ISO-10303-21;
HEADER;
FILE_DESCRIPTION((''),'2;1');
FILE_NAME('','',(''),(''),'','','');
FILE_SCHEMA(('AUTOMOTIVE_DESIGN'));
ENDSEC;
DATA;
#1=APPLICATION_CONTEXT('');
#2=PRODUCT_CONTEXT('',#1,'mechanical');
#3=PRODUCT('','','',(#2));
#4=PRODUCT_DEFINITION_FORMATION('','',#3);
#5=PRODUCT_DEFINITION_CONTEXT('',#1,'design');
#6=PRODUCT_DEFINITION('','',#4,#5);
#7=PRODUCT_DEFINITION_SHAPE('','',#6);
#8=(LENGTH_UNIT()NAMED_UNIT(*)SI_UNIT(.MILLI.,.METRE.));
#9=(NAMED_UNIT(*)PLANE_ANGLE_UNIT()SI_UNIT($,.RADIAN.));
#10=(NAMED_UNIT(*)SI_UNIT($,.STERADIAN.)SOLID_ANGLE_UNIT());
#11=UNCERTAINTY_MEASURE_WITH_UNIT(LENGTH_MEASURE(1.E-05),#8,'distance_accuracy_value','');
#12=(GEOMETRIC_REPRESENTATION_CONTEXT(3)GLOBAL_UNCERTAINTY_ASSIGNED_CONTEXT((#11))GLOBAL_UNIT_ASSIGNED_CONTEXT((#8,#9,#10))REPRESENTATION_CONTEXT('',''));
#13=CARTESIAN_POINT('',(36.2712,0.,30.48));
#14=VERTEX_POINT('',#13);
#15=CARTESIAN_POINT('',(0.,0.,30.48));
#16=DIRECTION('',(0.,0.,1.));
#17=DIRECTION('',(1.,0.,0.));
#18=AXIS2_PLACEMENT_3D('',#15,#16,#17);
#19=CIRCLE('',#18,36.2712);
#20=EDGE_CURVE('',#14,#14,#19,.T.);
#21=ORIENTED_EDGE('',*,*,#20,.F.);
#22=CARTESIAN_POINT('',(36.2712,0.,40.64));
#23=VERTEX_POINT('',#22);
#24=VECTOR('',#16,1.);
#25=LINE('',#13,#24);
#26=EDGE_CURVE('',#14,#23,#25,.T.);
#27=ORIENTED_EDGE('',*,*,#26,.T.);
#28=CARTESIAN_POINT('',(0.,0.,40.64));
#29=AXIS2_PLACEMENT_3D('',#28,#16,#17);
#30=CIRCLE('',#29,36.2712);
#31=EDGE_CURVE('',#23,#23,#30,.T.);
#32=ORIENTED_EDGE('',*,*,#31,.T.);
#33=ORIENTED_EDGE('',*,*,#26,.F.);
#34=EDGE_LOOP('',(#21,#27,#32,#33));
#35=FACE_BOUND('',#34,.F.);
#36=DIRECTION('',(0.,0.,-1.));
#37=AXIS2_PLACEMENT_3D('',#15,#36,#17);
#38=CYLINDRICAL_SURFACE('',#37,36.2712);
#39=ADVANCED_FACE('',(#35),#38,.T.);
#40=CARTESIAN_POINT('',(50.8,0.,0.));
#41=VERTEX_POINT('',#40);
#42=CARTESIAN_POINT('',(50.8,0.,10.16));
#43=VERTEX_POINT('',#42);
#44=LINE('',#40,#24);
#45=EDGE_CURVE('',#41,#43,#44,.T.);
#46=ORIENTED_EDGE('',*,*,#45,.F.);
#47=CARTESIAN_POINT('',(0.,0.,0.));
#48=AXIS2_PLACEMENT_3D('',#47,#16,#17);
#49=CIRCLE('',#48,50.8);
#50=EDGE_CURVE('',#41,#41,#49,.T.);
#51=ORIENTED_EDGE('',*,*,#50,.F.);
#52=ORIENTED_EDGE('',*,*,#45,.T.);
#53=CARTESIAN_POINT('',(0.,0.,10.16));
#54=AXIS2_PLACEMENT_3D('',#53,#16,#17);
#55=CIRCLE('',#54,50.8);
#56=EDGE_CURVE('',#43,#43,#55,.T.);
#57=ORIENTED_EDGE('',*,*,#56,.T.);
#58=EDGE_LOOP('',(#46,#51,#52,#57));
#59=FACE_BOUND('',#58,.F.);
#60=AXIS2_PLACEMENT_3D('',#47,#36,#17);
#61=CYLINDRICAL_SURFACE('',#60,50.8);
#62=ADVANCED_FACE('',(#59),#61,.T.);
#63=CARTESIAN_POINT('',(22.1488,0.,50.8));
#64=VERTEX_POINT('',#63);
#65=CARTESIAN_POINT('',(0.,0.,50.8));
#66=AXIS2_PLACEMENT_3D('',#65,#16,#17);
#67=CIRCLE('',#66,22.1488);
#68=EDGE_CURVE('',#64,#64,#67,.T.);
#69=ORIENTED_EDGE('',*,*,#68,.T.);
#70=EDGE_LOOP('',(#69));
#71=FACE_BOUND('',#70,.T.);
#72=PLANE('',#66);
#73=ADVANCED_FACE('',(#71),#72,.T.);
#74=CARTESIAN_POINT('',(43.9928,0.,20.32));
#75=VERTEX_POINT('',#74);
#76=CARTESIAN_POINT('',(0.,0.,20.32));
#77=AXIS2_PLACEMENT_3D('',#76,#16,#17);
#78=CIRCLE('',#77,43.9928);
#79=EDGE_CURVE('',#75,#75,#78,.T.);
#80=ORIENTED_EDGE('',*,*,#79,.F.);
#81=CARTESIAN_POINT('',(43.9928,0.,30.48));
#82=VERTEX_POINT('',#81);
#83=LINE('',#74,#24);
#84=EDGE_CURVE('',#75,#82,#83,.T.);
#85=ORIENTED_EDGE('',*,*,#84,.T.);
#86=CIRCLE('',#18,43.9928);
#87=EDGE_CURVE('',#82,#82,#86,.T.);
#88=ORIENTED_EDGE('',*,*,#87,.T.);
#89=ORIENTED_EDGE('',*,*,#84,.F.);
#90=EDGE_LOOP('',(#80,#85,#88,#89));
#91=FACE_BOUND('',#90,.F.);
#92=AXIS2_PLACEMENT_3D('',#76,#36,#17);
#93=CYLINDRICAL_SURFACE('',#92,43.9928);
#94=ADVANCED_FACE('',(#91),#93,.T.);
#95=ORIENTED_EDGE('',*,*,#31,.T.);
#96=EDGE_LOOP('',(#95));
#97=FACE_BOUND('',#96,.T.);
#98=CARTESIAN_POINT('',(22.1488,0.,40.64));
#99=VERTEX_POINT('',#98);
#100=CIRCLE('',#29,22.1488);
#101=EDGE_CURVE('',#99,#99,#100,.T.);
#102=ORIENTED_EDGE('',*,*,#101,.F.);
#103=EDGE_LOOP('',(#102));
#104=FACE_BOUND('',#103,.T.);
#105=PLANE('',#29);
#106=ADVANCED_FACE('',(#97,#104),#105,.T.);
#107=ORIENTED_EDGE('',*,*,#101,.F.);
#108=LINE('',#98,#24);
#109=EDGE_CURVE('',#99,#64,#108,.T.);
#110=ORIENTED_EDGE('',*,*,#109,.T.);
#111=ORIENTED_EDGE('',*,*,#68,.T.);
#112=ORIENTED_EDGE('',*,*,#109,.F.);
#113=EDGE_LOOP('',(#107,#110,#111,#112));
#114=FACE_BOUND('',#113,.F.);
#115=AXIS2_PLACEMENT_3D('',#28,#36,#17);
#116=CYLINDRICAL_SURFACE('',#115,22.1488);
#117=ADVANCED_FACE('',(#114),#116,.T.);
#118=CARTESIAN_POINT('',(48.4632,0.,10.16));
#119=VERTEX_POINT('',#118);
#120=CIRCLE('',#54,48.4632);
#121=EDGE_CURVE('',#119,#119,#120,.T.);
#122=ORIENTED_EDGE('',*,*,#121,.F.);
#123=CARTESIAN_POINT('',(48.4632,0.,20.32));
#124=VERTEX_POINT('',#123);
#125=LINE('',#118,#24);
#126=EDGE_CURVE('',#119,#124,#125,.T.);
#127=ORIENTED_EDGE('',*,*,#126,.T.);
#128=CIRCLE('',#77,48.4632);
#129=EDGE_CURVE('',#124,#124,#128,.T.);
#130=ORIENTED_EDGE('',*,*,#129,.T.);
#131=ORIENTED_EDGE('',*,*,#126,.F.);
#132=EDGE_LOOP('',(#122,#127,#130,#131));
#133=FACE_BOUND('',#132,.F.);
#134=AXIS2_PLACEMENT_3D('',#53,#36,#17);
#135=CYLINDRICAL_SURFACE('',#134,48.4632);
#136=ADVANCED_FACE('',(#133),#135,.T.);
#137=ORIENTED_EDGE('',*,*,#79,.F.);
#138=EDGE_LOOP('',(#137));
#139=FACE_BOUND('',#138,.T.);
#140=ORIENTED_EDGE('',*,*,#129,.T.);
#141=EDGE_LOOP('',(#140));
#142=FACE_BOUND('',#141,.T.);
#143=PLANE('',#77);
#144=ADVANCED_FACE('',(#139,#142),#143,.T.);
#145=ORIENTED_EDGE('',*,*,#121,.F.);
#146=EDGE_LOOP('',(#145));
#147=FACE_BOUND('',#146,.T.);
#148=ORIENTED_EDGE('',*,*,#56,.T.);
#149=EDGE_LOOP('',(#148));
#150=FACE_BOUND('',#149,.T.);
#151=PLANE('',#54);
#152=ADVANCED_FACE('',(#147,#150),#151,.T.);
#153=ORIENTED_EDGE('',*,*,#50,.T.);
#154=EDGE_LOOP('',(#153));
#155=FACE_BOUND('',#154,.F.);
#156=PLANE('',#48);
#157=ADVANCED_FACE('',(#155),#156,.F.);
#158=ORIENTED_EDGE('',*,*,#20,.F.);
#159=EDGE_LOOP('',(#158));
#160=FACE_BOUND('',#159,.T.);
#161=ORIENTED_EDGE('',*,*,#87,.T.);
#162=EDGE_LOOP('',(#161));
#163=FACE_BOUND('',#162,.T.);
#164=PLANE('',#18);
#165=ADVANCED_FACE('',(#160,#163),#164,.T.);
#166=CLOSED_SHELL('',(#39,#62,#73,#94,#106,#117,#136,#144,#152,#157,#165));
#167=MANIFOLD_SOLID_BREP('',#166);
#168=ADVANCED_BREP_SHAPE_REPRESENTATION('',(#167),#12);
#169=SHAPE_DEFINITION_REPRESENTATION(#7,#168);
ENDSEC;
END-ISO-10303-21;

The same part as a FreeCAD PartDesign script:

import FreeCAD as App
import Part
import Sketcher

V = App.Vector
Q = App.Units.Quantity

doc = App.newDocument("Part")
params = doc.addObject("Spreadsheet::Sheet", "Params")
for row, (alias, value) in enumerate([
    ("sketch1_diameter", "4 in"),
    ("pad1_length", "0.4 in"),
    ("sketch2_diameter", "3.816 in"),
    ("pad2_length", "0.4 in"),
    ("sketch3_diameter", "3.464 in"),
    ("pad3_length", "0.4 in"),
    ("sketch4_diameter", "2.856 in"),
    ("pad4_length", "0.4 in"),
    ("sketch5_diameter", "1.744 in"),
    ("pad5_length", "0.4 in"),
], start=1):
    params.set(f"A{row}", alias)
    params.set(f"B{row}", "=" + value)
    params.setAlias(f"B{row}", alias)

body = doc.addObject("PartDesign::Body", "Body")

# Sketch on XY plane
sketch1 = body.newObject("Sketcher::SketchObject", "Sketch")
sketch1.AttachmentSupport = (doc.getObject("XY_Plane"), [""])
sketch1.MapMode = "FlatFace"
sketch1.addGeometry(Part.Circle(V(0, 0, 0), V(0, 0, 1), 51), False)
sketch1.addConstraint([
    Sketcher.Constraint("Coincident", 0, 3, -1, 1),
    Sketcher.Constraint("Diameter", 0, Q("4 in")),
])
sketch1.setExpression("Constraints[1]", "Params.sketch1_diameter")
pad1 = body.newObject("PartDesign::Pad", "Pad")
pad1.Profile = sketch1
pad1.setExpression("Length", "Params.pad1_length")

# Sketch on XY plane
sketch2 = body.newObject("Sketcher::SketchObject", "Sketch001")
sketch2.AttachmentSupport = (doc.getObject("XY_Plane"), [""])
sketch2.MapMode = "FlatFace"
sketch2.AttachmentOffset = App.Placement(V(0, 0, 0.4 * 25.4), App.Rotation())
sketch2.addGeometry(Part.Circle(V(0, 0, 0), V(0, 0, 1), 48), False)
sketch2.addConstraint([
    Sketcher.Constraint("Coincident", 0, 3, -1, 1),
    Sketcher.Constraint("Diameter", 0, Q("3.816 in")),
])
sketch2.setExpression("Constraints[1]", "Params.sketch2_diameter")
pad2 = body.newObject("PartDesign::Pad", "Pad001")
pad2.Profile = sketch2
pad2.setExpression("Length", "Params.pad2_length")

# Sketch on XY plane
sketch3 = body.newObject("Sketcher::SketchObject", "Sketch002")
sketch3.AttachmentSupport = (doc.getObject("XY_Plane"), [""])
sketch3.MapMode = "FlatFace"
sketch3.AttachmentOffset = App.Placement(V(0, 0, 0.8 * 25.4), App.Rotation())
sketch3.addGeometry(Part.Circle(V(0, 0, 0), V(0, 0, 1), 44), False)
sketch3.addConstraint([
    Sketcher.Constraint("Coincident", 0, 3, -1, 1),
    Sketcher.Constraint("Diameter", 0, Q("3.464 in")),
])
sketch3.setExpression("Constraints[1]", "Params.sketch3_diameter")
pad3 = body.newObject("PartDesign::Pad", "Pad002")
pad3.Profile = sketch3
pad3.setExpression("Length", "Params.pad3_length")

# Sketch on XY plane
sketch4 = body.newObject("Sketcher::SketchObject", "Sketch003")
sketch4.AttachmentSupport = (doc.getObject("XY_Plane"), [""])
sketch4.MapMode = "FlatFace"
sketch4.AttachmentOffset = App.Placement(V(0, 0, 1.2 * 25.4), App.Rotation())
sketch4.addGeometry(Part.Circle(V(0, 0, 0), V(0, 0, 1), 36), False)
sketch4.addConstraint([
    Sketcher.Constraint("Coincident", 0, 3, -1, 1),
    Sketcher.Constraint("Diameter", 0, Q("2.856 in")),
])
sketch4.setExpression("Constraints[1]", "Params.sketch4_diameter")
pad4 = body.newObject("PartDesign::Pad", "Pad003")
pad4.Profile = sketch4
pad4.setExpression("Length", "Params.pad4_length")

# Sketch on XY plane
sketch5 = body.newObject("Sketcher::SketchObject", "Sketch004")
sketch5.AttachmentSupport = (doc.getObject("XY_Plane"), [""])
sketch5.MapMode = "FlatFace"
sketch5.AttachmentOffset = App.Placement(V(0, 0, 1.6 * 25.4), App.Rotation())
sketch5.addGeometry(Part.Circle(V(0, 0, 0), V(0, 0, 1), 22), False)
sketch5.addConstraint([
    Sketcher.Constraint("Coincident", 0, 3, -1, 1),
    Sketcher.Constraint("Diameter", 0, Q("1.744 in")),
])
sketch5.setExpression("Constraints[1]", "Params.sketch5_diameter")
pad5 = body.newObject("PartDesign::Pad", "Pad004")
pad5.Profile = sketch5
pad5.setExpression("Length", "Params.pad5_length")

doc.recompute()
